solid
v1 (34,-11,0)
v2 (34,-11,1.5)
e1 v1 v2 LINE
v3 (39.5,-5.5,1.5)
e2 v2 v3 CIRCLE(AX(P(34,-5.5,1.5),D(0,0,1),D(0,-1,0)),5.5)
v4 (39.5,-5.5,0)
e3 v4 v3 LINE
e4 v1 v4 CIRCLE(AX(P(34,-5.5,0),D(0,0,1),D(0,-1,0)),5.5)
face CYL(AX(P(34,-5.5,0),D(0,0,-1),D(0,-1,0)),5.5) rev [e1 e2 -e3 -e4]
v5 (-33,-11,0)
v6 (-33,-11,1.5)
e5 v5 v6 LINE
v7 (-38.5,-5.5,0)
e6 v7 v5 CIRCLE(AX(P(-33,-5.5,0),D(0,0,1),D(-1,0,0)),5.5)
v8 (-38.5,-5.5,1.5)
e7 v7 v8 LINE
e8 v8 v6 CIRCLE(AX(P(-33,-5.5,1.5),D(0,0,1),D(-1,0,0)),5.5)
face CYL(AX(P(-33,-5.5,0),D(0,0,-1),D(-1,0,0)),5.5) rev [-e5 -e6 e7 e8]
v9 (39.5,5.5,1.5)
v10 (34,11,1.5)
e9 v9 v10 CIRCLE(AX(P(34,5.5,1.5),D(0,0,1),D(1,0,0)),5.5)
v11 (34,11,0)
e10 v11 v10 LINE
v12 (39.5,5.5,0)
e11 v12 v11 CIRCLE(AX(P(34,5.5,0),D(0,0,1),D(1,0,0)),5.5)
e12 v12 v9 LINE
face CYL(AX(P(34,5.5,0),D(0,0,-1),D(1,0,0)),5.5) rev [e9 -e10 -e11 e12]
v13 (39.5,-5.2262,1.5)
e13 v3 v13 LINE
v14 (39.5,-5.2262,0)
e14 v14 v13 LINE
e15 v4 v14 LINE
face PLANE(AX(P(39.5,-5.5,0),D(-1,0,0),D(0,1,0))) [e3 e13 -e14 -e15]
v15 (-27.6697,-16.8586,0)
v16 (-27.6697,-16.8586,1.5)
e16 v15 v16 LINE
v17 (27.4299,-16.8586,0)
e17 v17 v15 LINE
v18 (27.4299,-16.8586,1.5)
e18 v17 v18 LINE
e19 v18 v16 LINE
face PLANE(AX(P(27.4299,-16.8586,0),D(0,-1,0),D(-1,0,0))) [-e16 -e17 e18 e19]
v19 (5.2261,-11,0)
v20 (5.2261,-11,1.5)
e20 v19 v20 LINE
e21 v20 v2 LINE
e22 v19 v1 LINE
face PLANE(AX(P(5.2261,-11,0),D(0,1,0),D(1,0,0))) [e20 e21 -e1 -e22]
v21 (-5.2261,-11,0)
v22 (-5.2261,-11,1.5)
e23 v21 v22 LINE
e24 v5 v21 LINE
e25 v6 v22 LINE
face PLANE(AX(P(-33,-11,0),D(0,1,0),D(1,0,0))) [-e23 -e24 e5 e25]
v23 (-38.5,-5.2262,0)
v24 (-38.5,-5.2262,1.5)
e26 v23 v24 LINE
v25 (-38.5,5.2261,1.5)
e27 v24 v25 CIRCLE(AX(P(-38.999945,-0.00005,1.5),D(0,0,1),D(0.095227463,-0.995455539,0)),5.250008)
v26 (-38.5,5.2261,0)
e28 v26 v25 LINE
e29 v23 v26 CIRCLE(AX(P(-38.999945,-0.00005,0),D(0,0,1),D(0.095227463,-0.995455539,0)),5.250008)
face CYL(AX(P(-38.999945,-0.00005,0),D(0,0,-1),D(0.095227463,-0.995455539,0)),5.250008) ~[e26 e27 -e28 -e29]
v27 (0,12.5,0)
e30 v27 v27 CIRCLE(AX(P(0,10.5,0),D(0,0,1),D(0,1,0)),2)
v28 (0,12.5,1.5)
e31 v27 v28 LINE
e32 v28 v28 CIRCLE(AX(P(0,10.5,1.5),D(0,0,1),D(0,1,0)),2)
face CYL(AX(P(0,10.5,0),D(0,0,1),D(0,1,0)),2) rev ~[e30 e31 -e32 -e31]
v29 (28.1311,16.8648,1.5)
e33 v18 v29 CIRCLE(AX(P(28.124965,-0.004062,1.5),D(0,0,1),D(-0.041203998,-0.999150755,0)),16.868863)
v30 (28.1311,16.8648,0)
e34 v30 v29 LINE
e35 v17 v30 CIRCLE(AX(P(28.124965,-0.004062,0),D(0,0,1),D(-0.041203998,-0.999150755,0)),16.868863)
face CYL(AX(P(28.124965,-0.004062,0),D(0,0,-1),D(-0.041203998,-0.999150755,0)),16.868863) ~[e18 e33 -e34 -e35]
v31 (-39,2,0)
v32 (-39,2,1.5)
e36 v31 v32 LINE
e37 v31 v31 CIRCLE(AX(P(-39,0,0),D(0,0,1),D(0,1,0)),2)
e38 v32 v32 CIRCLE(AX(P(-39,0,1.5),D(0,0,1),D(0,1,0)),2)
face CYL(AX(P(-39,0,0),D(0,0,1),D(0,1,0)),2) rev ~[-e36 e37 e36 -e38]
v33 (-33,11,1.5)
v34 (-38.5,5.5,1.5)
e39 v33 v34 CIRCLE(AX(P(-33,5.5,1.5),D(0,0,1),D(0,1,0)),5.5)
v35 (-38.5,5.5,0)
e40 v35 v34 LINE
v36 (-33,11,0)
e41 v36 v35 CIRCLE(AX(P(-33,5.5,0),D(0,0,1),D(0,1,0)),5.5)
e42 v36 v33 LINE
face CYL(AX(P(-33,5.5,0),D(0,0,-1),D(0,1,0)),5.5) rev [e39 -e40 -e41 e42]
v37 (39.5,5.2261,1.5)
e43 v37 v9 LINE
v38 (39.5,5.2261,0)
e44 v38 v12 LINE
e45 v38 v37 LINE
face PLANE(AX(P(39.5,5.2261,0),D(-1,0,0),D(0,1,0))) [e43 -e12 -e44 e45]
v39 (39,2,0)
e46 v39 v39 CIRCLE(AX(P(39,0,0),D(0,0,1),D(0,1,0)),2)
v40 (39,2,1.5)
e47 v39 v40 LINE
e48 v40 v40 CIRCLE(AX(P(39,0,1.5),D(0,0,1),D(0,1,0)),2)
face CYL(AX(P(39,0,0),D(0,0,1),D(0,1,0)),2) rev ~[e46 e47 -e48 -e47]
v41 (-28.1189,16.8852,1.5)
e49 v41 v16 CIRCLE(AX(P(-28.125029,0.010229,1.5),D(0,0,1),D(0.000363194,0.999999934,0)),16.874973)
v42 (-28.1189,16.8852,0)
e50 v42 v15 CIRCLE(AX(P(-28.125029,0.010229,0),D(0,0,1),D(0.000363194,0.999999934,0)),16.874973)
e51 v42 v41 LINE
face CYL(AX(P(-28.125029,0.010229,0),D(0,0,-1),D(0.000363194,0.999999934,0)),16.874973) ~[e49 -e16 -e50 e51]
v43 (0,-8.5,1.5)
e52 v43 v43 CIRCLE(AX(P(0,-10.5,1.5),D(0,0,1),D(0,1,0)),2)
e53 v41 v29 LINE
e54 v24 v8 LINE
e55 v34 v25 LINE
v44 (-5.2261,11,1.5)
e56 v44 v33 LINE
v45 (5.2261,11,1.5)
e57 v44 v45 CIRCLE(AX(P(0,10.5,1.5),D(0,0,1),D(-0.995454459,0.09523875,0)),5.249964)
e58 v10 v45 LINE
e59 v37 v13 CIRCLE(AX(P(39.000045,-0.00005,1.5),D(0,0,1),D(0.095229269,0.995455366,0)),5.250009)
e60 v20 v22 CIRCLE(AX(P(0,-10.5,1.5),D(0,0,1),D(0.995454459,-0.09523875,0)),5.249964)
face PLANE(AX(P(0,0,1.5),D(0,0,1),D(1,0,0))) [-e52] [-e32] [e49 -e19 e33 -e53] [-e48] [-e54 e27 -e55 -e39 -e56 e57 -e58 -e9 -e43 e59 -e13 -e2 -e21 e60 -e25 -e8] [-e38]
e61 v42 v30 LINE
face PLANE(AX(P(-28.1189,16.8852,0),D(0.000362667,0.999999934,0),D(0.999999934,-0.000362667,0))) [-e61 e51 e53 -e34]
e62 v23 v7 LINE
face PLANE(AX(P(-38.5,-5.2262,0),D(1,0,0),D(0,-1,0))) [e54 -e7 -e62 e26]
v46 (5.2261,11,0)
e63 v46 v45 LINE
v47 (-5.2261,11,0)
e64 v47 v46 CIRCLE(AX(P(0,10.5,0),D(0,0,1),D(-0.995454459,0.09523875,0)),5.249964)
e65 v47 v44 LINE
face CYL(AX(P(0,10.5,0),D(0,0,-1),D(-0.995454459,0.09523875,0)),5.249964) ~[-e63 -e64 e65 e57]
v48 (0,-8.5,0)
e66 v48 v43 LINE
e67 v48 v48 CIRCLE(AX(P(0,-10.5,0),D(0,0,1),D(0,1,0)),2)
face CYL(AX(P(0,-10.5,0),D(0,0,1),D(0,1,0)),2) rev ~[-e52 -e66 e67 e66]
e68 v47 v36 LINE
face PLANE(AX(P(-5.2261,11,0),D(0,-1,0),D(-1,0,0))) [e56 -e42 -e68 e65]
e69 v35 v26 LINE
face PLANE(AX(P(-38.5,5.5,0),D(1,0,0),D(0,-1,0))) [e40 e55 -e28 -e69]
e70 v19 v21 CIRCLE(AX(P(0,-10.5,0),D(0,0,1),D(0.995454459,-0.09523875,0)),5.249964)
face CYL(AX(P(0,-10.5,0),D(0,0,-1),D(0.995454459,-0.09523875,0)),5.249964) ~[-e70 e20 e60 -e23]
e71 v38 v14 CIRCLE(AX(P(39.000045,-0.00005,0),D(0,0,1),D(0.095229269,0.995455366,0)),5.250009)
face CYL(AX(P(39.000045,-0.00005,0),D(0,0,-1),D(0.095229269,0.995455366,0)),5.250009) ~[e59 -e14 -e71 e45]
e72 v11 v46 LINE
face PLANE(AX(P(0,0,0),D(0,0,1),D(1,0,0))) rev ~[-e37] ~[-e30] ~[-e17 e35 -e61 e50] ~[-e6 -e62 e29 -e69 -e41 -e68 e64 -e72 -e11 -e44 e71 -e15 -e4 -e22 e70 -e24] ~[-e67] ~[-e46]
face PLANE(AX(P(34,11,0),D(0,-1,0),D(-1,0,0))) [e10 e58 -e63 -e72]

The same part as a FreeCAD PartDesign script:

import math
import FreeCAD as App
import Part
import Sketcher

V = App.Vector

doc = App.newDocument("Part")
body = doc.addObject("PartDesign::Body", "Body")

# Sketch on XY plane
sketch1 = doc.addObject("Sketcher::SketchObject", "Sketch")
body.addObject(sketch1)
sketch1.AttachmentSupport = (doc.XY_Plane, [""])
sketch1.MapMode = "FlatFace"
sketch1.addGeometry([
    Part.LineSegment(V(28.1311, 16.8648, 0), V(-28.1189, 16.8852, 0)),
    Part.ArcOfCircle(Part.Circle(V(-28.125, 0.0102, 0), V(0, 0, 1), 16.875001), math.radians(89.979289), math.radians(271.546075)),
    Part.LineSegment(V(-27.6697, -16.8586, 0), V(27.4299, -16.8586, 0)),
    Part.ArcOfCircle(Part.Circle(V(28.125, -0.0041, 0), V(0, 0, 1), 16.868827), math.radians(-92.361609), math.radians(89.979281)),
], False)
sketch1.addConstraint([
    Sketcher.Constraint("Coincident", 0, 2, 1, 1),
    Sketcher.Constraint("Coincident", 1, 2, 2, 1),
    Sketcher.Constraint("Coincident", 2, 2, 3, 1),
    Sketcher.Constraint("Coincident", 3, 2, 0, 1),
    Sketcher.Constraint("Horizontal", 2),
    Sketcher.Constraint("Radius", 1, 16.875),
    Sketcher.Constraint("Distance", 0, 56.25),
    Sketcher.Constraint("DistanceX", 1, 3, 3, 3, 56.25),
    Sketcher.Constraint("DistanceX", 1, 3, -1, 1, 28.125),
    Sketcher.Constraint("Radius", 3, 16.8688),
    Sketcher.Constraint("DistanceX", -1, 1, 2, 2, 27.43),
    Sketcher.Constraint("DistanceX", 2, 1, 2, 2, 55.0996),
    Sketcher.Constraint("DistanceY", 3, 3, -1, 1, 0.004),
    Sketcher.Constraint("DistanceX", 0, 2, -1, 1, 28.119),
])
pad1 = doc.addObject("PartDesign::Pad", "Pad")
body.addObject(pad1)
pad1.Profile = sketch1
pad1.Length = 1.5

# Sketch on XY plane
sketch2 = doc.addObject("Sketcher::SketchObject", "Sketch001")
body.addObject(sketch2)
sketch2.AttachmentSupport = (doc.XY_Plane, [""])
sketch2.MapMode = "FlatFace"
sketch2.addGeometry([
    Part.ArcOfCircle(Part.Circle(V(0, 10.5, 0), V(0, 0, 1), 5.25), math.radians(175), math.radians(365)),  # 0
    Part.LineSegment(V(-5.23, 11, 0), V(-33, 11, 0)),  # 1
    Part.ArcOfCircle(Part.Circle(V(-33, 5.5, 0), V(0, 0, 1), 5.5), math.radians(90), math.radians(180)),  # 2
    Part.LineSegment(V(-38.5, 5.5, 0), V(-38.5, 5.23, 0)),  # 3
    Part.ArcOfCircle(Part.Circle(V(-39, 0, 0), V(0, 0, 1), 5.25), math.radians(-85), math.radians(85)),  # 4
    Part.LineSegment(V(-38.5, -5.23, 0), V(-38.5, -5.5, 0)),  # 5
    Part.ArcOfCircle(Part.Circle(V(-33, -5.5, 0), V(0, 0, 1), 5.5), math.radians(180), math.radians(270)),  # 6
    Part.LineSegment(V(-33, -11, 0), V(-5.23, -11, 0)),  # 7
    Part.ArcOfCircle(Part.Circle(V(0, -10.5, 0), V(0, 0, 1), 5.25), math.radians(-5), math.radians(185)),  # 8
    Part.LineSegment(V(5.23, -11, 0), V(34, -11, 0)),  # 9
    Part.ArcOfCircle(Part.Circle(V(34, -5.5, 0), V(0, 0, 1), 5.5), math.radians(-90), math.radians(0)),  # 10
    Part.LineSegment(V(39.5, -5.5, 0), V(39.5, -5.23, 0)),  # 11
    Part.ArcOfCircle(Part.Circle(V(39, 0, 0), V(0, 0, 1), 5.25), math.radians(85), math.radians(275)),  # 12
    Part.LineSegment(V(39.5, 5.23, 0), V(39.5, 5.5, 0)),  # 13
    Part.ArcOfCircle(Part.Circle(V(34, 5.5, 0), V(0, 0, 1), 5.5), math.radians(0), math.radians(90)),  # 14
    Part.LineSegment(V(34, 11, 0), V(5.23, 11, 0)),  # 15
], False)
sketch2.addConstraint([
    Sketcher.Constraint("Coincident", 0, 1, 1, 1),
    Sketcher.Constraint("Tangent", 1, 2, 2, 1),
    Sketcher.Constraint("Tangent", 2, 2, 3, 1),
    Sketcher.Constraint("Coincident", 3, 2, 4, 2),
    Sketcher.Constraint("Coincident", 4, 1, 5, 1),
    Sketcher.Constraint("Tangent", 5, 2, 6, 1),
    Sketcher.Constraint("Tangent", 6, 2, 7, 1),
    Sketcher.Constraint("Coincident", 7, 2, 8, 2),
    Sketcher.Constraint("Coincident", 8, 1, 9, 1),
    Sketcher.Constraint("Tangent", 9, 2, 10, 1),
    Sketcher.Constraint("Tangent", 10, 2, 11, 1),
    Sketcher.Constraint("Coincident", 11, 2, 12, 2),
    Sketcher.Constraint("Coincident", 12, 1, 13, 1),
    Sketcher.Constraint("Tangent", 13, 2, 14, 1),
    Sketcher.Constraint("Tangent", 14, 2, 15, 1),
    Sketcher.Constraint("Coincident", 15, 2, 0, 2),
    Sketcher.Constraint("Horizontal", 1),
    Sketcher.Constraint("Vertical", 3),
    Sketcher.Constraint("Vertical", 5),
    Sketcher.Constraint("Horizontal", 7),
    Sketcher.Constraint("Horizontal", 9),
    Sketcher.Constraint("Vertical", 11),
    Sketcher.Constraint("Vertical", 13),
    Sketcher.Constraint("Horizontal", 15),
    Sketcher.Constraint("Equal", 0, 4),
    Sketcher.Constraint("Equal", 2, 6),
    Sketcher.Constraint("Equal", 4, 8),
    Sketcher.Constraint("Equal", 6, 10),
    Sketcher.Constraint("Equal", 8, 12),
    Sketcher.Constraint("Equal", 10, 14),
    Sketcher.Constraint("Symmetric", 0, 3, 8, 3, -1, 1),
    Sketcher.Constraint("Symmetric", 4, 3, 12, 3, -1, 1),
    Sketcher.Constraint("Symmetric", 7, 2, 8, 1, -2),
    Sketcher.Constraint("Symmetric", 2, 3, 6, 3, -1),
    Sketcher.Constraint("Symmetric", 10, 3, 14, 3, -1),
    Sketcher.Constraint("PointOnObject", 4, 3, -1),
    Sketcher.Constraint("Horizontal", 4, 1, 11, 2),
    Sketcher.Constraint("Radius", 2, 5.5),
    Sketcher.Constraint("Radius", 0, 5.25),
    Sketcher.Constraint("DistanceY", 7, 2, 0, 1, 22.0),
    Sketcher.Constraint("DistanceX", 2, 3, -1, 1, 33.0),
    Sketcher.Constraint("DistanceX", 4, 3, -1, 1, 39.0),
    Sketcher.Constraint("DistanceY", 2, 3, 0, 3, 5.0),
])
pocket1 = doc.addObject("PartDesign::Pocket", "Pocket")
body.addObject(pocket1)
pocket1.Profile = sketch2
pocket1.Length = 1.5
pocket1.Reversed = True

# Sketch on XY plane
sketch3 = doc.addObject("Sketcher::SketchObject", "Sketch002")
body.addObject(sketch3)
sketch3.AttachmentSupport = (doc.XY_Plane, [""])
sketch3.MapMode = "FlatFace"
sketch3.addGeometry([
    Part.Circle(V(-39, 0, 0), V(0, 0, 1), 2),
    Part.Circle(V(0, 10.5, 0), V(0, 0, 1), 2),
    Part.Circle(V(0, -10.5, 0), V(0, 0, 1), 2),
    Part.Circle(V(39, 0, 0), V(0, 0, 1), 2),
], False)
sketch3.addConstraint([
    Sketcher.Constraint("Equal", 0, 1),
    Sketcher.Constraint("Equal", 1, 2),
    Sketcher.Constraint("Equal", 2, 3),
    Sketcher.Constraint("Symmetric", 1, 3, 2, 3, -1, 1),
    Sketcher.Constraint("Symmetric", 0, 3, 3, 3, -1, 1),
    Sketcher.Constraint("PointOnObject", 0, 3, -1),
    Sketcher.Constraint("PointOnObject", 1, 3, -2),
    Sketcher.Constraint("Diameter", 0, 4.0),
    Sketcher.Constraint("DistanceX", 0, 3, -1, 1, 39.0),
    Sketcher.Constraint("DistanceY", 2, 3, 1, 3, 21.0),
])
doc.recompute()
hole = doc.addObject("PartDesign::Hole", "Hole")
body.addObject(hole)
hole.Profile = sketch3
hole.ThreadType = "None"
hole.Diameter = 4
hole.DepthType = "ThroughAll"
hole.Reversed = True

doc.recompute()
